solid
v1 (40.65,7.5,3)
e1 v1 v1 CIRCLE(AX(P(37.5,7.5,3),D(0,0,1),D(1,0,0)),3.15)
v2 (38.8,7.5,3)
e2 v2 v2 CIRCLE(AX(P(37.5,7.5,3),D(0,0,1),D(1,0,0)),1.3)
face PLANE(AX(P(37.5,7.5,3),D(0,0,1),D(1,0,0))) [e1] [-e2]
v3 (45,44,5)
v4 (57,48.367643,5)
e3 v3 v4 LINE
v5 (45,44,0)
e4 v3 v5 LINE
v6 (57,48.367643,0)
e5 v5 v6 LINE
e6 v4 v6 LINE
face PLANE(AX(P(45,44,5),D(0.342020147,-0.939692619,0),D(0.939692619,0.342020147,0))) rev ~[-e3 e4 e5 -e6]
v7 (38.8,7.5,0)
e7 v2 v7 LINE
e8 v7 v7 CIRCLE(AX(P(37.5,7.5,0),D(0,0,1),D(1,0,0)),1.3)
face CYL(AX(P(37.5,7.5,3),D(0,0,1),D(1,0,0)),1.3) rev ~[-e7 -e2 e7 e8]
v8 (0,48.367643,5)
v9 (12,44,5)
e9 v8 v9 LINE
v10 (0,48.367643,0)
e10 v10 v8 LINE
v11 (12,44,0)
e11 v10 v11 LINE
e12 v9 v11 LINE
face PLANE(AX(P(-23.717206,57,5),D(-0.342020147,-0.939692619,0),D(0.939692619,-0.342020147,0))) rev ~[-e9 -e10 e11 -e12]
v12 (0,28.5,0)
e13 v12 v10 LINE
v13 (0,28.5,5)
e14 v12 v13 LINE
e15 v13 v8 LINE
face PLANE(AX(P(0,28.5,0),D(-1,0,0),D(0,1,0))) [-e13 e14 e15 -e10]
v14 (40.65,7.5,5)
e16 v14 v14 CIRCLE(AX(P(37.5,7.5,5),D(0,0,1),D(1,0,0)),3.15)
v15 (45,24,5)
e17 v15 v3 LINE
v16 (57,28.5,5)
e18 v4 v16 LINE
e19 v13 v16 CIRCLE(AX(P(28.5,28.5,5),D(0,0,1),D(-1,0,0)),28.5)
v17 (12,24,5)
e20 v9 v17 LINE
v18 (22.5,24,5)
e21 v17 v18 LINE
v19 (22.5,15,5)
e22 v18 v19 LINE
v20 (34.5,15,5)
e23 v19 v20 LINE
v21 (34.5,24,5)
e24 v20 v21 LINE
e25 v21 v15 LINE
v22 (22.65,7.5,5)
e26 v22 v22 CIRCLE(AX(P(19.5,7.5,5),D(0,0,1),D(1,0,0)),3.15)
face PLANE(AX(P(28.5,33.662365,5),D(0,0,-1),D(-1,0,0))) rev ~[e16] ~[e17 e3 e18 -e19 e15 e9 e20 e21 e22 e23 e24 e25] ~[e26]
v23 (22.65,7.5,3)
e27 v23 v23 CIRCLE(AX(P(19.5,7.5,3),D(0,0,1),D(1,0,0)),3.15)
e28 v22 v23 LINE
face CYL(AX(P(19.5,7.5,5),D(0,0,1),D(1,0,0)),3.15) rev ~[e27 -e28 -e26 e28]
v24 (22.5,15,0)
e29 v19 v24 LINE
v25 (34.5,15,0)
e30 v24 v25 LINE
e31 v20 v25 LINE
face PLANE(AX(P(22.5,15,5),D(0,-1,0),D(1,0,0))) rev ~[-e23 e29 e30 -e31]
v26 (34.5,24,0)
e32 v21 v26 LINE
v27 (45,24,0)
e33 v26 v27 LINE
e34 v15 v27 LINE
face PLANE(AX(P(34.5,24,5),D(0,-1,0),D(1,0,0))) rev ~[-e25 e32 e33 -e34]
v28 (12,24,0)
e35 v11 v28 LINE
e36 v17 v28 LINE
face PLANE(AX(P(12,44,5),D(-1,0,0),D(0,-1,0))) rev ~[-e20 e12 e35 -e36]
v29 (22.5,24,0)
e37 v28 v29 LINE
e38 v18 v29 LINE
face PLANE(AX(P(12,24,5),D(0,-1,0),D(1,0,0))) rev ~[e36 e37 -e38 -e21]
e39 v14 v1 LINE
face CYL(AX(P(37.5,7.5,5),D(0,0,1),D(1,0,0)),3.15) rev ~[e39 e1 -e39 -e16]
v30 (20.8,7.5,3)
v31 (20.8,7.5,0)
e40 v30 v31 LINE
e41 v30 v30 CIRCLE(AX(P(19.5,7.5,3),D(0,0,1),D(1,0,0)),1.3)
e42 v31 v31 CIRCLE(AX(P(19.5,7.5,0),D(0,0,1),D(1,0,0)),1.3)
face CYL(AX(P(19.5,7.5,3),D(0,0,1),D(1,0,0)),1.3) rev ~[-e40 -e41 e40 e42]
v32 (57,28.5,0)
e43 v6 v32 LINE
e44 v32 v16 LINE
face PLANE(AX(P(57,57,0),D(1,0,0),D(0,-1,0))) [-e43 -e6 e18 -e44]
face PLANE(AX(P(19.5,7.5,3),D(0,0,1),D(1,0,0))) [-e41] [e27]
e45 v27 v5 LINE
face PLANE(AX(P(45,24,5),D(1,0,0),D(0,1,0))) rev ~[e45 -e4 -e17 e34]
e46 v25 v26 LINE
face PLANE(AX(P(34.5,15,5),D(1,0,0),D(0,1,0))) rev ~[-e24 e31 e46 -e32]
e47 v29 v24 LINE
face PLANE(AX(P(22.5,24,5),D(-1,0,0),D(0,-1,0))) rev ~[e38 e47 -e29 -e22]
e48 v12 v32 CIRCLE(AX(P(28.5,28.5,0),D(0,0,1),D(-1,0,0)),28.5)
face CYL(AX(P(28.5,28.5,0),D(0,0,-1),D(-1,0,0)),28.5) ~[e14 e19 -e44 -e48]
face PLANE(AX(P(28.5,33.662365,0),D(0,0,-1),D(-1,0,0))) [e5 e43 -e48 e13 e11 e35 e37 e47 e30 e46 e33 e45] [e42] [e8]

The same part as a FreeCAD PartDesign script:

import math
import FreeCAD as App
import Part
import Sketcher
from FreeCAD import Vector
Q = App.Units.Quantity

doc = App.newDocument("Part")
body = doc.addObject("PartDesign::Body", "Body")

sketch1 = body.newObject("Sketcher::SketchObject", "Sketch")
sketch1.AttachmentSupport = (doc.getObject("XY_Plane"), [""])
sketch1.MapMode = "FlatFace"
sketch1.addGeometry([
    Part.LineSegment(Vector(0, 57, 0), Vector(0, 28, 0)),
    Part.ArcOfCircle(Part.Circle(Vector(28, 28, 0), Vector(0, 0, 1), 28), math.radians(180), math.radians(360)),
    Part.LineSegment(Vector(57, 28, 0), Vector(57, 57, 0)),
    Part.LineSegment(Vector(57, 57, 0), Vector(0, 57, 0)),
], False)
sketch1.addConstraint([
    Sketcher.Constraint("Tangent", 0, 2, 1, 1),
    Sketcher.Constraint("Tangent", 1, 2, 2, 1),
    Sketcher.Constraint("Coincident", 2, 2, 3, 1),
    Sketcher.Constraint("Coincident", 3, 2, 0, 1),
    Sketcher.Constraint("Vertical", 0),
    Sketcher.Constraint("Vertical", 2),
    Sketcher.Constraint("Horizontal", 3),
    Sketcher.Constraint("PointOnObject", 0, 2, -2),
    Sketcher.Constraint("Radius", 1, 28.5),
    Sketcher.Constraint("DistanceY", 0, 2, 0, 1, 28.5),
    Sketcher.Constraint("DistanceY", -1, 1, 2, 2, 57.0),
])
pad1 = body.newObject("PartDesign::Pad", "Pad")
pad1.Profile = sketch1
pad1.Length = 5

sketch2 = body.newObject("Sketcher::SketchObject", "Sketch001")
sketch2.AttachmentSupport = (doc.getObject("XY_Plane"), [""])
sketch2.MapMode = "FlatFace"
sketch2.AttachmentOffset = App.Placement(Vector(0, 0, 5), App.Rotation())
sketch2.addGeometry([
    Part.LineSegment(Vector(22, 15, 0), Vector(34, 15, 0)),
    Part.LineSegment(Vector(34, 15, 0), Vector(34, 24, 0)),
    Part.LineSegment(Vector(34, 24, 0), Vector(45, 24, 0)),
    Part.LineSegment(Vector(45, 24, 0), Vector(45, 44, 0)),
    Part.LineSegment(Vector(45, 44, 0), Vector(81, 57, 0)),
    Part.LineSegment(Vector(81, 57, 0), Vector(-24, 57, 0)),
    Part.LineSegment(Vector(-24, 57, 0), Vector(12, 44, 0)),
    Part.LineSegment(Vector(12, 44, 0), Vector(12, 24, 0)),
    Part.LineSegment(Vector(12, 24, 0), Vector(22, 24, 0)),
    Part.LineSegment(Vector(22, 24, 0), Vector(22, 15, 0)),
], False)
sketch2.addConstraint([
    Sketcher.Constraint("Coincident", 0, 2, 1, 1),
    Sketcher.Constraint("Coincident", 1, 2, 2, 1),
    Sketcher.Constraint("Coincident", 2, 2, 3, 1),
    Sketcher.Constraint("Coincident", 3, 2, 4, 1),
    Sketcher.Constraint("Coincident", 4, 2, 5, 1),
    Sketcher.Constraint("Coincident", 5, 2, 6, 1),
    Sketcher.Constraint("Coincident", 6, 2, 7, 1),
    Sketcher.Constraint("Coincident", 7, 2, 8, 1),
    Sketcher.Constraint("Coincident", 8, 2, 9, 1),
    Sketcher.Constraint("Coincident", 9, 2, 0, 1),
    Sketcher.Constraint("Horizontal", 0),
    Sketcher.Constraint("Vertical", 1),
    Sketcher.Constraint("Horizontal", 2),
    Sketcher.Constraint("Vertical", 3),
    Sketcher.Constraint("Horizontal", 5),
    Sketcher.Constraint("Vertical", 7),
    Sketcher.Constraint("Horizontal", 8),
    Sketcher.Constraint("Vertical", 9),
    Sketcher.Constraint("Horizontal", 3, 2, 6, 2),
    Sketcher.Constraint("Horizontal", 2, 2, 7, 2),
    Sketcher.Constraint("Equal", 2, 8),
    Sketcher.Constraint("Equal", 4, 6),
    Sketcher.Constraint("DistanceX", 0, 1, 0, 2, 12.0),
    Sketcher.Constraint("DistanceY", 1, 1, 1, 2, 9.0),
    Sketcher.Constraint("DistanceY", 3, 1, 3, 2, 20.0),
    Sketcher.Constraint("Angle", 4, Q("20 deg")),
    Sketcher.Constraint("DistanceX", 2, 1, 2, 2, 10.5),
    Sketcher.Constraint("DistanceY", -1, 1, 0, 2, 15.0),
    Sketcher.Constraint("DistanceX", -1, 1, 2, 2, 45.0),
    Sketcher.Constraint("DistanceY", -1, 1, 4, 2, 57.0),
])
pocket1 = body.newObject("PartDesign::Pocket", "Pocket")
pocket1.Profile = sketch2
pocket1.Length = 5

sketch3 = body.newObject("Sketcher::SketchObject", "Sketch002")
sketch3.AttachmentSupport = (doc.getObject("XY_Plane"), [""])
sketch3.MapMode = "FlatFace"
sketch3.AttachmentOffset = App.Placement(Vector(0, 0, 5), App.Rotation())
sketch3.addGeometry([
    Part.Circle(Vector(19.5, 7.5, 0), Vector(0, 0, 1), 3.1),
    Part.Circle(Vector(37.5, 7.5, 0), Vector(0, 0, 1), 3.1),
], False)
sketch3.addConstraint([
    Sketcher.Constraint("Equal", 0, 1),
    Sketcher.Constraint("Horizontal", 0, 3, 1, 3),
    Sketcher.Constraint("Diameter", 0, 6.3),
    Sketcher.Constraint("DistanceX", 0, 3, 1, 3, 18.0),
    Sketcher.Constraint("DistanceX", -1, 1, 0, 3, 19.5),
    Sketcher.Constraint("DistanceY", -1, 1, 0, 3, 7.5),
])
pocket2 = body.newObject("PartDesign::Pocket", "Pocket001")
pocket2.Profile = sketch3
pocket2.Length = 2

sketch4 = body.newObject("Sketcher::SketchObject", "Sketch003")
sketch4.AttachmentSupport = (doc.getObject("XY_Plane"), [""])
sketch4.MapMode = "FlatFace"
sketch4.AttachmentOffset = App.Placement(Vector(0, 0, 3), App.Rotation())
sketch4.addGeometry([
    Part.Circle(Vector(19.5, 7.5, 0), Vector(0, 0, 1), 1.3),
    Part.Circle(Vector(37.5, 7.5, 0), Vector(0, 0, 1), 1.3),
], False)
sketch4.addConstraint([
    Sketcher.Constraint("Equal", 0, 1),
    Sketcher.Constraint("Horizontal", 0, 3, 1, 3),
    Sketcher.Constraint("Diameter", 0, 2.6),
    Sketcher.Constraint("DistanceX", 0, 3, 1, 3, 18.0),
    Sketcher.Constraint("DistanceX", -1, 1, 0, 3, 19.5),
    Sketcher.Constraint("DistanceY", -1, 1, 0, 3, 7.5),
])
pocket3 = body.newObject("PartDesign::Pocket", "Pocket002")
pocket3.Profile = sketch4
pocket3.Length = 3

doc.recompute()
